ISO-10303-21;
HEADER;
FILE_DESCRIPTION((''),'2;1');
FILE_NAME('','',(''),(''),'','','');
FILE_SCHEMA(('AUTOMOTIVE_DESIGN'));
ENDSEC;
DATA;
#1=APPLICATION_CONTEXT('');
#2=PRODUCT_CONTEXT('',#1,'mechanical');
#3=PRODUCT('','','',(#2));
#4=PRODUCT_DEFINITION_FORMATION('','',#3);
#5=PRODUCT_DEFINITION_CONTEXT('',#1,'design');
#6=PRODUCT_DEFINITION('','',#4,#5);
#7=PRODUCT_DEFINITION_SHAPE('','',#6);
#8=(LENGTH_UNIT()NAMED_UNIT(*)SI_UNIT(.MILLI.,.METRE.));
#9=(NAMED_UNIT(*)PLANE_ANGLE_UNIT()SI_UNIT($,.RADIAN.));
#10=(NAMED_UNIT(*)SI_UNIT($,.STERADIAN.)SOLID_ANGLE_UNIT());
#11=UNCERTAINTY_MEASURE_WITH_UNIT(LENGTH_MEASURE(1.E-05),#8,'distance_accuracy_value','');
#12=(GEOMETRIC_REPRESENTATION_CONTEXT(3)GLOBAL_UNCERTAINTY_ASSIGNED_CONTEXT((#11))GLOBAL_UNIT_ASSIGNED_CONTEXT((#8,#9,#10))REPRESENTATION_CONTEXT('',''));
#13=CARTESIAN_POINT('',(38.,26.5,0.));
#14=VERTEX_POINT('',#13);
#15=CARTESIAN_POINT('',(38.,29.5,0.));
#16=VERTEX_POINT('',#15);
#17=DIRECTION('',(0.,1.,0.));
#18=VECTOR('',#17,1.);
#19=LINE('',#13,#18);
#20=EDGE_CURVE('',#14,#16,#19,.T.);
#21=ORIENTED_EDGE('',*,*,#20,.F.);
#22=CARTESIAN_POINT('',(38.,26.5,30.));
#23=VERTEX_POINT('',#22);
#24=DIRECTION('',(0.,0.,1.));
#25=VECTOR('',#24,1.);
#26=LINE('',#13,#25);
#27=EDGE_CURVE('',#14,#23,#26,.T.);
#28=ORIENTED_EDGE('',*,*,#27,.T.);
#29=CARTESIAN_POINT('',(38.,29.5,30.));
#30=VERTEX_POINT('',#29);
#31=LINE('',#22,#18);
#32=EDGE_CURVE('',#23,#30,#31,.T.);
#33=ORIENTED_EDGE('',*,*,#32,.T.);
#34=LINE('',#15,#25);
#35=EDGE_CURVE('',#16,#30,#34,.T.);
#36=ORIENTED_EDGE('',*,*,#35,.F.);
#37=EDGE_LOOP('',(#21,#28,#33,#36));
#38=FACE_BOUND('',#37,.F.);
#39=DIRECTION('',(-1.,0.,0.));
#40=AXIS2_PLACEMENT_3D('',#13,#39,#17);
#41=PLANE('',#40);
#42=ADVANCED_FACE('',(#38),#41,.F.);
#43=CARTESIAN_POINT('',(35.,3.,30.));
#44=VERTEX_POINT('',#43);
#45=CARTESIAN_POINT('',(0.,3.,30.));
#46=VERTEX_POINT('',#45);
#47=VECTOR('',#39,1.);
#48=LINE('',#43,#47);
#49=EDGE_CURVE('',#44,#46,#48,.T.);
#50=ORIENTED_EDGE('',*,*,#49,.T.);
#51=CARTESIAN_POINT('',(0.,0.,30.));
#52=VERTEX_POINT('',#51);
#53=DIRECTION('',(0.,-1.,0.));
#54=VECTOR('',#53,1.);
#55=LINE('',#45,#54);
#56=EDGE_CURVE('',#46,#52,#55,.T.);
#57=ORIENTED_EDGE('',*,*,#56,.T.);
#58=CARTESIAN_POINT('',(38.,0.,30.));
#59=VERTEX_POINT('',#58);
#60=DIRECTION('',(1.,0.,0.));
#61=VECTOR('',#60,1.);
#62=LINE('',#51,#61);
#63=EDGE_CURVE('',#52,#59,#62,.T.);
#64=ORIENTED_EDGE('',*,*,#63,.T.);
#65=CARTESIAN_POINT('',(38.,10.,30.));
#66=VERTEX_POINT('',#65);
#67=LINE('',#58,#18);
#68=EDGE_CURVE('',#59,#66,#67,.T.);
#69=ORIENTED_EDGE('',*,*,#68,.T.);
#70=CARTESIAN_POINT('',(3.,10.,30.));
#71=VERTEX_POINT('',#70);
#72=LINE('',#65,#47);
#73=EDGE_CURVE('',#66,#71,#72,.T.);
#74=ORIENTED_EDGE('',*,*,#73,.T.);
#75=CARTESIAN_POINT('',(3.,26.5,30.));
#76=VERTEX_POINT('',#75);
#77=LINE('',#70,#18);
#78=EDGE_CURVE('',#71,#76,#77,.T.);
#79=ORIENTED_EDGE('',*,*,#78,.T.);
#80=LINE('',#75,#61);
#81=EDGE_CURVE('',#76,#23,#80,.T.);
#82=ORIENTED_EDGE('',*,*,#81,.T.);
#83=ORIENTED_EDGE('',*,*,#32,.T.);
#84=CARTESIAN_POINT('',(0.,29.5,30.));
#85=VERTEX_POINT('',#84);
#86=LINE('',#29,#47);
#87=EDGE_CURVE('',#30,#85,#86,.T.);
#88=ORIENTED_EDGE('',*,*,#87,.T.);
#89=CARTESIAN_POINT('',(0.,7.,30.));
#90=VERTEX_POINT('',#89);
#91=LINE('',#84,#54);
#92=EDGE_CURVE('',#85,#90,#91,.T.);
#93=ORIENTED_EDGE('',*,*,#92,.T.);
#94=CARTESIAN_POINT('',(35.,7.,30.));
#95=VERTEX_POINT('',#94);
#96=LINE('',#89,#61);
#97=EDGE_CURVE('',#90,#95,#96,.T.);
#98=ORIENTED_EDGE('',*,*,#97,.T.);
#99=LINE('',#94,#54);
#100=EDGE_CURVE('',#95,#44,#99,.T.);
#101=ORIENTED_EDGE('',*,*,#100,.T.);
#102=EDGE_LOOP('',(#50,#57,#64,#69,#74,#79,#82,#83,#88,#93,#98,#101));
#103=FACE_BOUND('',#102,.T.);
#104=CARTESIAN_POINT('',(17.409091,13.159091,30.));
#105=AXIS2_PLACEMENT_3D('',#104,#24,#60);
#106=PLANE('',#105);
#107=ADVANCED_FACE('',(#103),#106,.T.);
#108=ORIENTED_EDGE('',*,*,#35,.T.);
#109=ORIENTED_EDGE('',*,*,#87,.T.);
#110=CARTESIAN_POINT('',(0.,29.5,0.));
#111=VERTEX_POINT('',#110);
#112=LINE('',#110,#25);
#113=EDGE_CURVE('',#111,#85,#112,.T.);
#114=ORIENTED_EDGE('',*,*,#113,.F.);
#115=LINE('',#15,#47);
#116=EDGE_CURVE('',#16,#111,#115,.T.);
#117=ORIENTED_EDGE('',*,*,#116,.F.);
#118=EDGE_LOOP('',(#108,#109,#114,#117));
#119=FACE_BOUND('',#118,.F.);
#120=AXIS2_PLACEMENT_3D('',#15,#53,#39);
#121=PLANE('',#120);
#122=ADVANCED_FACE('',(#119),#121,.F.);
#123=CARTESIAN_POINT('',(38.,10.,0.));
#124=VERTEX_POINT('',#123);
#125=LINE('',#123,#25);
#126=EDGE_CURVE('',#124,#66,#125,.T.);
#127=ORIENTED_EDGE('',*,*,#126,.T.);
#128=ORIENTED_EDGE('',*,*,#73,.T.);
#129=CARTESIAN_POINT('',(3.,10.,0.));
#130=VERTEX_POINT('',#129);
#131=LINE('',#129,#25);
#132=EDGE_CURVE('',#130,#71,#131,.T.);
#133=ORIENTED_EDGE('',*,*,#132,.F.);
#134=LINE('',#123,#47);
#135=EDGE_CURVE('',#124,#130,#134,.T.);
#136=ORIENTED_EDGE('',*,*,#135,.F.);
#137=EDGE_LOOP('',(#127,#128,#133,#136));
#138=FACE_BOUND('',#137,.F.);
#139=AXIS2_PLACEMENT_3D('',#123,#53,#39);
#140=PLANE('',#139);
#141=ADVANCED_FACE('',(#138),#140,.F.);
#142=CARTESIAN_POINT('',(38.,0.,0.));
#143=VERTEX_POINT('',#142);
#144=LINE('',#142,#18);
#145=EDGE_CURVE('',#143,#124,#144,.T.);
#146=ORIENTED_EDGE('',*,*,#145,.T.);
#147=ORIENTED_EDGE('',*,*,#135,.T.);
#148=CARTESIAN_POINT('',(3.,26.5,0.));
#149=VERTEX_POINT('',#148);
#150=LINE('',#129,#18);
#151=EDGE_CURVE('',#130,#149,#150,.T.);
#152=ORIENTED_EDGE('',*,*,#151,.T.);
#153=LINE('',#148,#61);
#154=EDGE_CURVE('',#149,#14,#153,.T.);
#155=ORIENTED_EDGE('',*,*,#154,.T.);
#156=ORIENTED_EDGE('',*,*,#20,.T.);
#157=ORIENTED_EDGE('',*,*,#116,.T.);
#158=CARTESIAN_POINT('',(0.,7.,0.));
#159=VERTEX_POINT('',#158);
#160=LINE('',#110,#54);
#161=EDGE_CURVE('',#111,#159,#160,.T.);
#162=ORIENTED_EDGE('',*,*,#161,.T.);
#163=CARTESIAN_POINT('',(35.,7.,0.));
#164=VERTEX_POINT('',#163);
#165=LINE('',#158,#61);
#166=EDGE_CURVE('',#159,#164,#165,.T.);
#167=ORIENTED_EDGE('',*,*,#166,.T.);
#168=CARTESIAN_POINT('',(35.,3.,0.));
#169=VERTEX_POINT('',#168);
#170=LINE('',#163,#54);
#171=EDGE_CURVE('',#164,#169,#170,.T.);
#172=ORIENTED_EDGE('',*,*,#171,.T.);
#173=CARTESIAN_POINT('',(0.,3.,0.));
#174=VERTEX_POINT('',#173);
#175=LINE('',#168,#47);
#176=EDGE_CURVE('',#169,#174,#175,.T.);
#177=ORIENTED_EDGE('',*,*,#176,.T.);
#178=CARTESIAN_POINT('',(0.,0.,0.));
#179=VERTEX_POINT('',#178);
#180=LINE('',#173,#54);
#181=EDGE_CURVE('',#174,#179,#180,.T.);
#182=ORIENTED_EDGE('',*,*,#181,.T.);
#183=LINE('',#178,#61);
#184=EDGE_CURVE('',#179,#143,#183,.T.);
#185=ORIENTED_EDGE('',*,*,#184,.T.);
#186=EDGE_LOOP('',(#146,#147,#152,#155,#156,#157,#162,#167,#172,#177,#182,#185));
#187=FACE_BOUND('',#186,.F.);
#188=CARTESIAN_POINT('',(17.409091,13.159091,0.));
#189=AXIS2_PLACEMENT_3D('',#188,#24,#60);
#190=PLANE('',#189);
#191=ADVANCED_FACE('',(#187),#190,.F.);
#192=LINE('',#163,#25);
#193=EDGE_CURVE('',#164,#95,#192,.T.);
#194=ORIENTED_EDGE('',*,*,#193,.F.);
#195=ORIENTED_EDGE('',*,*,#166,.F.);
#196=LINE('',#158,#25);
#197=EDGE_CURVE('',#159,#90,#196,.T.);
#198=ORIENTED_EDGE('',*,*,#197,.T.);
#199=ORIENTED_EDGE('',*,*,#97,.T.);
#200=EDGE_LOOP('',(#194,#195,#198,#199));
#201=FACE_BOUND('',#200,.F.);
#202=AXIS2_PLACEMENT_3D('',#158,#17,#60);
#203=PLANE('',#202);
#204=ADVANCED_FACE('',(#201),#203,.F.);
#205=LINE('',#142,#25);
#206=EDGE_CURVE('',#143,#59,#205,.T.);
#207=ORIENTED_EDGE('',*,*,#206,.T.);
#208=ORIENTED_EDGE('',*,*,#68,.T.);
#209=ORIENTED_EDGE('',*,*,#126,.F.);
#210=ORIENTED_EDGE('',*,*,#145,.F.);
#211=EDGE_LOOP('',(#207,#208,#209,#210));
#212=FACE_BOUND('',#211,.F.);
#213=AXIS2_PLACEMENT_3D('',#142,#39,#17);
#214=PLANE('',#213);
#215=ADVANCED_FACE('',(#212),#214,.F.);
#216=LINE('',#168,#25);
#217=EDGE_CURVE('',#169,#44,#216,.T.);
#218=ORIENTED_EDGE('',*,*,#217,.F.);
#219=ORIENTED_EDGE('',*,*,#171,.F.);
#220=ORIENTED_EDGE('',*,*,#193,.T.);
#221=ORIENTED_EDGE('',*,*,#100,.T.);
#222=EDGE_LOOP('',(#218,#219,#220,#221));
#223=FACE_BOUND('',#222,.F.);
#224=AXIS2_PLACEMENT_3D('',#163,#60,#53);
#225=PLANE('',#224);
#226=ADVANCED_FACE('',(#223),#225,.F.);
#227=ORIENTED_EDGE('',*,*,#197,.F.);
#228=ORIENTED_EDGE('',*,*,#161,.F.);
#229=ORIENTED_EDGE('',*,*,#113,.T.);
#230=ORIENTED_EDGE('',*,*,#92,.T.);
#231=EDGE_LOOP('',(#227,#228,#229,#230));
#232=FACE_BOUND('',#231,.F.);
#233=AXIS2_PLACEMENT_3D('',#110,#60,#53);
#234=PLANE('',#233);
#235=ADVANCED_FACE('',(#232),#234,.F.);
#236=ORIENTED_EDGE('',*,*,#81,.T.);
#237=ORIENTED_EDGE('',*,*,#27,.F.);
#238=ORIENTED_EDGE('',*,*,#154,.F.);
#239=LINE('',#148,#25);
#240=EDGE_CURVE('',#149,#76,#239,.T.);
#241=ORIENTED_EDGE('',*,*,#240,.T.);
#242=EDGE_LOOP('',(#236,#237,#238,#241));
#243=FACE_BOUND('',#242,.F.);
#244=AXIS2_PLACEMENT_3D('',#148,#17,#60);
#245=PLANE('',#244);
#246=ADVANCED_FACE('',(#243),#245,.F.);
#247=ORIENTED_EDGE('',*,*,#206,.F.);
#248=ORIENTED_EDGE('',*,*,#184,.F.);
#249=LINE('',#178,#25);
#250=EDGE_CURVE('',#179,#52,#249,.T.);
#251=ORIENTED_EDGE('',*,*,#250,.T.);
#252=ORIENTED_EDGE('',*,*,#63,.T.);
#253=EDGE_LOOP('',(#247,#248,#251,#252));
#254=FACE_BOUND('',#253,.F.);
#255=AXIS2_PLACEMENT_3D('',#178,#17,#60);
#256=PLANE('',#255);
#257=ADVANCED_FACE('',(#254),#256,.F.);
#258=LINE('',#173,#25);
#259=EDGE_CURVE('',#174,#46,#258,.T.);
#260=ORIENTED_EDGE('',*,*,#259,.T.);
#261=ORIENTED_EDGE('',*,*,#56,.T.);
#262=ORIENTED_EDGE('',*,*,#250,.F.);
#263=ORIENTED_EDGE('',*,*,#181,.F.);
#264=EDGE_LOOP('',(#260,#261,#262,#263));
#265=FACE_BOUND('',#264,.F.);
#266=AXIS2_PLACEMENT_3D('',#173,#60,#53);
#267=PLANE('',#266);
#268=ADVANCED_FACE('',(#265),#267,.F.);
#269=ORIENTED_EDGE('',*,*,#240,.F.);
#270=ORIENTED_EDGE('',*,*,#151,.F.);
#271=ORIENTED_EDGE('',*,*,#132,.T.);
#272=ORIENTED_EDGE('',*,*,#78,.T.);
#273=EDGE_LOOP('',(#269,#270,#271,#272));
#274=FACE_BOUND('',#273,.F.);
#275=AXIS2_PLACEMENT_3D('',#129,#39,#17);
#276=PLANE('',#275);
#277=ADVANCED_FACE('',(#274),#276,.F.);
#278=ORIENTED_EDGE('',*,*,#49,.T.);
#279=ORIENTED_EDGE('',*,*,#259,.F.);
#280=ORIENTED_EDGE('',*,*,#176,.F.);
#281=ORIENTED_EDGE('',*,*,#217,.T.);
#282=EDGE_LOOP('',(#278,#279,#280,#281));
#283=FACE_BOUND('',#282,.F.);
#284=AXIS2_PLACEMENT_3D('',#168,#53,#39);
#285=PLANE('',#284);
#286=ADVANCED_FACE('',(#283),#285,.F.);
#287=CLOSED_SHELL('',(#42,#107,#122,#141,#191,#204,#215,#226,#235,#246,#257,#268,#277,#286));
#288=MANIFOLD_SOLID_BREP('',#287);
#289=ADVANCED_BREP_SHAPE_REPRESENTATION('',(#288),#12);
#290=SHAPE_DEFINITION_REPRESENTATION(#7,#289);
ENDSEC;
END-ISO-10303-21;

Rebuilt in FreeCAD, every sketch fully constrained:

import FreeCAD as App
import Part
import Sketcher
Q = App.Units.Quantity

doc = App.newDocument("Part")
params = doc.addObject("Spreadsheet::Sheet", "Params")
for row, (alias, value) in enumerate([
    ("sketch1_width", "38 mm"),
    ("sketch1_width2", "35 mm"),
    ("sketch1_height", "4 mm"),
    ("sketch1_height2", "3 mm"),
    ("sketch1_height3", "10 mm"),
    ("pad1_length", "30 mm"),
], start=1):
    params.set(f"A{row}", alias)
    params.set(f"B{row}", "=" + value)
    params.setAlias(f"B{row}", alias)

body = doc.addObject("PartDesign::Body", "Body")

# Sketch on XY plane
sketch1 = body.newObject("Sketcher::SketchObject", "Sketch")
sketch1.AttachmentSupport = (doc.getObject("XY_Plane"), [""])
sketch1.MapMode = "FlatFace"
sketch1.addGeometry(Part.LineSegment(App.Vector(38, 29.5, 0), App.Vector(0, 29.5, 0)), False)
sketch1.addGeometry(Part.LineSegment(App.Vector(0, 29.5, 0), App.Vector(0, 7, 0)), False)
sketch1.addGeometry(Part.LineSegment(App.Vector(0, 7, 0), App.Vector(35, 7, 0)), False)
sketch1.addGeometry(Part.LineSegment(App.Vector(35, 7, 0), App.Vector(35, 3, 0)), False)
sketch1.addGeometry(Part.LineSegment(App.Vector(35, 3, 0), App.Vector(0, 3, 0)), False)
sketch1.addGeometry(Part.LineSegment(App.Vector(0, 3, 0), App.Vector(0, 0, 0)), False)
sketch1.addGeometry(Part.LineSegment(App.Vector(0, 0, 0), App.Vector(38, 0, 0)), False)
sketch1.addGeometry(Part.LineSegment(App.Vector(38, 0, 0), App.Vector(38, 10, 0)), False)
sketch1.addGeometry(Part.LineSegment(App.Vector(38, 10, 0), App.Vector(3, 10, 0)), False)
sketch1.addGeometry(Part.LineSegment(App.Vector(3, 10, 0), App.Vector(3, 26.5, 0)), False)
sketch1.addGeometry(Part.LineSegment(App.Vector(3, 26.5, 0), App.Vector(38, 26.5, 0)), False)
sketch1.addGeometry(Part.LineSegment(App.Vector(38, 26.5, 0), App.Vector(38, 29.5, 0)), False)
sketch1.addConstraint(Sketcher.Constraint("Coincident", 0, 2, 1, 1))
sketch1.addConstraint(Sketcher.Constraint("Coincident", 1, 2, 2, 1))
sketch1.addConstraint(Sketcher.Constraint("Coincident", 2, 2, 3, 1))
sketch1.addConstraint(Sketcher.Constraint("Coincident", 3, 2, 4, 1))
sketch1.addConstraint(Sketcher.Constraint("Coincident", 4, 2, 5, 1))
sketch1.addConstraint(Sketcher.Constraint("Coincident", 5, 2, 6, 1))
sketch1.addConstraint(Sketcher.Constraint("Coincident", 6, 2, 7, 1))
sketch1.addConstraint(Sketcher.Constraint("Coincident", 7, 2, 8, 1))
sketch1.addConstraint(Sketcher.Constraint("Coincident", 8, 2, 9, 1))
sketch1.addConstraint(Sketcher.Constraint("Coincident", 9, 2, 10, 1))
sketch1.addConstraint(Sketcher.Constraint("Coincident", 10, 2, 11, 1))
sketch1.addConstraint(Sketcher.Constraint("Coincident", 11, 2, 0, 1))
sketch1.addConstraint(Sketcher.Constraint("Horizontal", 0))
sketch1.addConstraint(Sketcher.Constraint("Vertical", 1))
sketch1.addConstraint(Sketcher.Constraint("Horizontal", 2))
sketch1.addConstraint(Sketcher.Constraint("Vertical", 3))
sketch1.addConstraint(Sketcher.Constraint("Horizontal", 4))
sketch1.addConstraint(Sketcher.Constraint("Vertical", 5))
sketch1.addConstraint(Sketcher.Constraint("Horizontal", 6))
sketch1.addConstraint(Sketcher.Constraint("Vertical", 7))
sketch1.addConstraint(Sketcher.Constraint("Horizontal", 8))
sketch1.addConstraint(Sketcher.Constraint("Vertical", 9))
sketch1.addConstraint(Sketcher.Constraint("Horizontal", 10))
sketch1.addConstraint(Sketcher.Constraint("Vertical", 11))
sketch1.addConstraint(Sketcher.Constraint("Coincident", 5, 2, -1, 1))
sketch1.addConstraint(Sketcher.Constraint("PointOnObject", 0, 2, -2))
sketch1.addConstraint(Sketcher.Constraint("Vertical", 7, 2, 10, 2))
sketch1.addConstraint(Sketcher.Constraint("Equal", 4, 8))
sketch1.addConstraint(Sketcher.Constraint("Equal", 5, 11))
sketch1.addConstraint(Sketcher.Constraint("DistanceX", 0, 2, 0, 1, Q("38 mm")))
sketch1.addConstraint(Sketcher.Constraint("DistanceX", 2, 1, 2, 2, Q("35 mm")))
sketch1.addConstraint(Sketcher.Constraint("DistanceY", 3, 2, 3, 1, Q("4 mm")))
sketch1.addConstraint(Sketcher.Constraint("DistanceY", 5, 2, 5, 1, Q("3 mm")))
sketch1.addConstraint(Sketcher.Constraint("DistanceY", 7, 1, 7, 2, Q("10 mm")))
sketch1.addConstraint(Sketcher.Constraint("DistanceY", 1, 2, 1, 1, Q("22.5 mm")))
sketch1.setExpression("Constraints[29]", "Params.sketch1_width")
sketch1.setExpression("Constraints[30]", "Params.sketch1_width2")
sketch1.setExpression("Constraints[31]", "Params.sketch1_height")
sketch1.setExpression("Constraints[32]", "Params.sketch1_height2")
sketch1.setExpression("Constraints[33]", "Params.sketch1_height3")
pad1 = body.newObject("PartDesign::Pad", "Pad")
pad1.Profile = sketch1
pad1.setExpression("Length", "Params.pad1_length")

doc.recompute()
